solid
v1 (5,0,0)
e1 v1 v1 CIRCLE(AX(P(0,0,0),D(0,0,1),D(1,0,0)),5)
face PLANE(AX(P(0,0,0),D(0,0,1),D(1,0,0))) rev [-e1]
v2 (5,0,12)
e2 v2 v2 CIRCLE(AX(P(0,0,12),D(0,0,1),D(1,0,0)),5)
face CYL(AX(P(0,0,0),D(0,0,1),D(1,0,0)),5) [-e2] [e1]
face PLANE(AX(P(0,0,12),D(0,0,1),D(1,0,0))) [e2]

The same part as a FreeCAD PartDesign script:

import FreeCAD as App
import Part
import Sketcher
Q = App.Units.Quantity

doc = App.newDocument("Part")
body = doc.addObject("PartDesign::Body", "Body")

sketch1 = doc.addObject("Sketcher::SketchObject", "Sketch")
body.addObject(sketch1)
sketch1.AttachmentSupport = (doc.XY_Plane, [""])
sketch1.MapMode = "FlatFace"
sketch1.addGeometry([
    Part.LineSegment(App.Vector(-20, 15, 0), App.Vector(-20, -15, 0)),
    Part.LineSegment(App.Vector(-20, -15, 0), App.Vector(20, -15, 0)),
    Part.LineSegment(App.Vector(20, -15, 0), App.Vector(20, 15, 0)),
    Part.LineSegment(App.Vector(20, 15, 0), App.Vector(-20, 15, 0)),
], False)
sketch1.addConstraint([
    Sketcher.Constraint("Coincident", 0, 2, 1, 1),
    Sketcher.Constraint("Coincident", 1, 2, 2, 1),
    Sketcher.Constraint("Coincident", 2, 2, 3, 1),
    Sketcher.Constraint("Coincident", 3, 2, 0, 1),
    Sketcher.Constraint("Vertical", 0),
    Sketcher.Constraint("Horizontal", 1),
    Sketcher.Constraint("Vertical", 2),
    Sketcher.Constraint("Horizontal", 3),
    Sketcher.Constraint("Symmetric", 0, 2, 2, 2, -1, 1),
    Sketcher.Constraint("DistanceX", 1, 1, 1, 2, Q("40 mm")),
    Sketcher.Constraint("DistanceY", 0, 2, 0, 1, Q("30 mm")),
])
pad1 = doc.addObject("PartDesign::Pad", "Pad")
body.addObject(pad1)
pad1.Profile = sketch1
pad1.Length = 12

sketch2 = doc.addObject("Sketcher::SketchObject", "Sketch001")
body.addObject(sketch2)
sketch2.AttachmentSupport = (doc.XY_Plane, [""])
sketch2.MapMode = "FlatFace"
sketch2.AttachmentOffset = App.Placement(App.Vector(0, 0, 12), App.Rotation())
sketch2.addGeometry([
    Part.LineSegment(App.Vector(-26, 21, 0), App.Vector(-26, -21, 0)),
    Part.LineSegment(App.Vector(-26, -21, 0), App.Vector(26, -21, 0)),
    Part.LineSegment(App.Vector(26, -21, 0), App.Vector(26, 21, 0)),
    Part.LineSegment(App.Vector(26, 21, 0), App.Vector(-26, 21, 0)),
    Part.Circle(App.Vector(0, 0, 0), App.Vector(0, 0, 1), 5),
], False)
sketch2.addConstraint([
    Sketcher.Constraint("Coincident", 0, 2, 1, 1),
    Sketcher.Constraint("Coincident", 1, 2, 2, 1),
    Sketcher.Constraint("Coincident", 2, 2, 3, 1),
    Sketcher.Constraint("Coincident", 3, 2, 0, 1),
    Sketcher.Constraint("Vertical", 0),
    Sketcher.Constraint("Horizontal", 1),
    Sketcher.Constraint("Vertical", 2),
    Sketcher.Constraint("Horizontal", 3),
    Sketcher.Constraint("Coincident", 4, 3, -1, 1),
    Sketcher.Constraint("Symmetric", 0, 2, 2, 2, -1, 1),
    Sketcher.Constraint("Diameter", 4, Q("10 mm")),
    Sketcher.Constraint("DistanceX", 1, 1, 1, 2, Q("52.284 mm")),
    Sketcher.Constraint("DistanceY", 0, 2, 0, 1, Q("42.284 mm")),
])
pocket1 = doc.addObject("PartDesign::Pocket", "Pocket")
body.addObject(pocket1)
pocket1.Profile = sketch2
pocket1.Type = "ThroughAll"

doc.recompute()
